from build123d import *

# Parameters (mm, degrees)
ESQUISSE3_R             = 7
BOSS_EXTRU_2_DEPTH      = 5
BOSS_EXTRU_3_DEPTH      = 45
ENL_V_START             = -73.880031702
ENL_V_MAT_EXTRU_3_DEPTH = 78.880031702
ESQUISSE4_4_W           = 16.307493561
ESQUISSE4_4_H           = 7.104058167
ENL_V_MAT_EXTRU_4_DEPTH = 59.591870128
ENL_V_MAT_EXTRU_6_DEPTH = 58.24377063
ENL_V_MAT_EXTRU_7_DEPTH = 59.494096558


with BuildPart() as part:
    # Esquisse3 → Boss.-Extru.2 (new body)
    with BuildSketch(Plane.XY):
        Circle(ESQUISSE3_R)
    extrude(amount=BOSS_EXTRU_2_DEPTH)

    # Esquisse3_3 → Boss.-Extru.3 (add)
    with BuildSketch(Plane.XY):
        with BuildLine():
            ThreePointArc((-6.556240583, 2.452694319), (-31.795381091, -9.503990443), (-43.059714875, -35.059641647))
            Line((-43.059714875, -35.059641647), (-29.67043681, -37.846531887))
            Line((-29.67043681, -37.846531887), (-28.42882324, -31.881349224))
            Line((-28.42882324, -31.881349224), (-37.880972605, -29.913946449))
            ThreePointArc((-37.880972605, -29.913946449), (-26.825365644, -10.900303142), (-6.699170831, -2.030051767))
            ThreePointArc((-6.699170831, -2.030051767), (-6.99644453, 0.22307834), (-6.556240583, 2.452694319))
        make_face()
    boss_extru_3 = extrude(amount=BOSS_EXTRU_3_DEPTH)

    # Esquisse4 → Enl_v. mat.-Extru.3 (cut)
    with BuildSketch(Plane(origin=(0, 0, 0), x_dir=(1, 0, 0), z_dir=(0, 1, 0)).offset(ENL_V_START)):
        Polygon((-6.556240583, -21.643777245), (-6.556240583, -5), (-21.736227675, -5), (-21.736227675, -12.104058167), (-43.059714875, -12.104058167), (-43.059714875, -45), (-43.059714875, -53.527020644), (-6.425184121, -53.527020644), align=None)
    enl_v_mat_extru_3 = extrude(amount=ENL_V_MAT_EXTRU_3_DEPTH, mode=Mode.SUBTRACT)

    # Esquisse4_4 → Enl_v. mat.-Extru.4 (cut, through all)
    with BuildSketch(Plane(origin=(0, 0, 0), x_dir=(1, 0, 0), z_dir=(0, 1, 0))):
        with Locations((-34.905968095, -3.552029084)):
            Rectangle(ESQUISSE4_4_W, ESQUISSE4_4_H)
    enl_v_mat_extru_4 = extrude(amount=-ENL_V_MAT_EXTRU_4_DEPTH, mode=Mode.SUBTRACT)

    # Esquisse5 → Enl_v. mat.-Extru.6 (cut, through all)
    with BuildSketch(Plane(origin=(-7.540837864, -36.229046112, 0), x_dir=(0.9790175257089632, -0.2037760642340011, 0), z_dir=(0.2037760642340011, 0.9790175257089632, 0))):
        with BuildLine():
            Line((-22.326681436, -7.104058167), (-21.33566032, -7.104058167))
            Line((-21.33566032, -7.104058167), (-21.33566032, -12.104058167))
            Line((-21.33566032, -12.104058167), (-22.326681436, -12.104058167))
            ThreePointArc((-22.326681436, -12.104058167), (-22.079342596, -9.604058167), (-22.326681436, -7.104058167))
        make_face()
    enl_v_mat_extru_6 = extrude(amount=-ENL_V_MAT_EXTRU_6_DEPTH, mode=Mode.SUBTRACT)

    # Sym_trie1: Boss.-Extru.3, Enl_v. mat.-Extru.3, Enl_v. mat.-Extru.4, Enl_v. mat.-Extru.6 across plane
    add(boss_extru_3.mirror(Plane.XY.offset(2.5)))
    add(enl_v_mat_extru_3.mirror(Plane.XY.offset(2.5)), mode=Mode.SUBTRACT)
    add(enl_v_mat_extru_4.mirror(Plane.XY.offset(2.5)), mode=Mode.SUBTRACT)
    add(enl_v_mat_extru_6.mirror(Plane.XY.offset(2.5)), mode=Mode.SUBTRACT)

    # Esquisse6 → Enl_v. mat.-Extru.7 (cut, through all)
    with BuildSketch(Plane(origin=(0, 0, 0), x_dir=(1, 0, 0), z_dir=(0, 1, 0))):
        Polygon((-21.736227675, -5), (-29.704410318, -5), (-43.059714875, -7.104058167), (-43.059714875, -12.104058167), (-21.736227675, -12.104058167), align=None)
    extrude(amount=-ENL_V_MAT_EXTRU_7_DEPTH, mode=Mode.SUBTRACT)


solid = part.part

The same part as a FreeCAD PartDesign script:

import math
import FreeCAD as App
import Part
import Sketcher
from FreeCAD import Vector

doc = App.newDocument("Part")
body = doc.addObject("PartDesign::Body", "Body")

# Sketch on XY plane
sketch1 = body.newObject("Sketcher::SketchObject", "Sketch")
sketch1.AttachmentSupport = (doc.getObject("XY_Plane"), [""])
sketch1.MapMode = "FlatFace"
sketch1.addGeometry(Part.Circle(Vector(0, 0, 0), Vector(0, 0, 1), 7), False)
sketch1.addConstraint(Sketcher.Constraint("Coincident", 0, 3, -1, 1))
sketch1.addConstraint(Sketcher.Constraint("Diameter", 0, 14.0))
pad1 = body.newObject("PartDesign::Pad", "Pad")
pad1.Profile = sketch1
pad1.Length = 5

# Sketch on XY plane
sketch2 = body.newObject("Sketcher::SketchObject", "Sketch001")
sketch2.AttachmentSupport = (doc.getObject("XY_Plane"), [""])
sketch2.MapMode = "FlatFace"
sketch2.addGeometry(Part.ArcOfCircle(Part.Circle(Vector(-3.128248, -37.400146, 0), Vector(0, 0, 1), 40), math.radians(94.916268), math.radians(176.645559)), False)
sketch2.addGeometry(Part.LineSegment(Vector(-43.059715, -35.059642, 0), Vector(-29.670437, -37.846532, 0)), False)
sketch2.addGeometry(Part.LineSegment(Vector(-29.670437, -37.846532, 0), Vector(-28.428823, -31.881349, 0)), False)
sketch2.addGeometry(Part.LineSegment(Vector(-28.428823, -31.881349, 0), Vector(-37.880973, -29.913946, 0)), False)
sketch2.addGeometry(Part.ArcOfCircle(Part.Circle(Vector(-3.128248, -37.400146, 0), Vector(0, 0, 1), 35.549895), math.radians(95.76498), math.radians(167.843487)), False)
sketch2.addGeometry(Part.ArcOfCircle(Part.Circle(Vector(0, 0, 0), Vector(0, 0, 1), 7), math.radians(159.489141), math.radians(196.858399)), False)
sketch2.addConstraint(Sketcher.Constraint("Coincident", 0, 2, 1, 1))
sketch2.addConstraint(Sketcher.Constraint("Coincident", 1, 2, 2, 1))
sketch2.addConstraint(Sketcher.Constraint("Coincident", 2, 2, 3, 1))
sketch2.addConstraint(Sketcher.Constraint("Coincident", 3, 2, 4, 2))
sketch2.addConstraint(Sketcher.Constraint("Coincident", 4, 1, 5, 2))
sketch2.addConstraint(Sketcher.Constraint("Coincident", 5, 1, 0, 1))
sketch2.addConstraint(Sketcher.Constraint("Coincident", 5, 3, -1, 1))
sketch2.addConstraint(Sketcher.Constraint("Coincident", 4, 3, 0, 3))
sketch2.addConstraint(Sketcher.Constraint("Perpendicular", 1, 2))
sketch2.addConstraint(Sketcher.Constraint("Perpendicular", 2, 3))
sketch2.addConstraint(Sketcher.Constraint("Radius", 0, 40.0))
sketch2.addConstraint(Sketcher.Constraint("Radius", 5, 7.0))
sketch2.addConstraint(Sketcher.Constraint("Radius", 4, 35.549895))
sketch2.addConstraint(Sketcher.Constraint("DistanceY", 4, 3, 3, 2, 7.486199))
sketch2.addConstraint(Sketcher.Constraint("DistanceX", 3, 2, 4, 1, 31.181802))
sketch2.addConstraint(Sketcher.Constraint("Distance", 1, 13.676239))
sketch2.addConstraint(Sketcher.Constraint("Distance", 2, 6.093029))
sketch2.addConstraint(Sketcher.Constraint("Distance", 3, 9.654729))
sketch2.addConstraint(Sketcher.Constraint("DistanceX", 0, 3, -1, 1, 3.128248))
pad2 = body.newObject("PartDesign::Pad", "Pad001")
pad2.Profile = sketch2
pad2.Length = 45

# Sketch on XZ plane
sketch3 = body.newObject("Sketcher::SketchObject", "Sketch002")
sketch3.AttachmentSupport = (doc.getObject("XZ_Plane"), [""])
sketch3.MapMode = "FlatFace"
sketch3.AttachmentOffset = App.Placement(Vector(0, 0, 73.880032), App.Rotation())
sketch3.addGeometry(Part.LineSegment(Vector(-6.556241, 21.643777, 0), Vector(-6.556241, 5, 0)), False)
sketch3.addGeometry(Part.LineSegment(Vector(-6.556241, 5, 0), Vector(-21.736228, 5, 0)), False)
sketch3.addGeometry(Part.LineSegment(Vector(-21.736228, 5, 0), Vector(-21.736228, 12.104058, 0)), False)
sketch3.addGeometry(Part.LineSegment(Vector(-21.736228, 12.104058, 0), Vector(-43.059715, 12.104058, 0)), False)
sketch3.addGeometry(Part.LineSegment(Vector(-43.059715, 12.104058, 0), Vector(-43.059715, 53.527021, 0)), False)
sketch3.addGeometry(Part.LineSegment(Vector(-43.059715, 53.527021, 0), Vector(-6.425184, 53.527021, 0)), False)
sketch3.addGeometry(Part.LineSegment(Vector(-6.425184, 53.527021, 0), Vector(-6.556241, 21.643777, 0)), False)
sketch3.addConstraint(Sketcher.Constraint("Coincident", 0, 2, 1, 1))
sketch3.addConstraint(Sketcher.Constraint("Coincident", 1, 2, 2, 1))
sketch3.addConstraint(Sketcher.Constraint("Coincident", 2, 2, 3, 1))
sketch3.addConstraint(Sketcher.Constraint("Coincident", 3, 2, 4, 1))
sketch3.addConstraint(Sketcher.Constraint("Coincident", 4, 2, 5, 1))
sketch3.addConstraint(Sketcher.Constraint("Coincident", 5, 2, 6, 1))
sketch3.addConstraint(Sketcher.Constraint("Coincident", 6, 2, 0, 1))
sketch3.addConstraint(Sketcher.Constraint("Vertical", 0))
sketch3.addConstraint(Sketcher.Constraint("Horizontal", 1))
sketch3.addConstraint(Sketcher.Constraint("Vertical", 2))
sketch3.addConstraint(Sketcher.Constraint("Horizontal", 3))
sketch3.addConstraint(Sketcher.Constraint("Vertical", 4))
sketch3.addConstraint(Sketcher.Constraint("Horizontal", 5))
sketch3.addConstraint(Sketcher.Constraint("DistanceY", -1, 1, 0, 2, 5.0))
sketch3.addConstraint(Sketcher.Constraint("DistanceX", 5, 1, 5, 2, 36.634531))
sketch3.addConstraint(Sketcher.Constraint("DistanceY", 2, 1, 2, 2, 7.104058))
sketch3.addConstraint(Sketcher.Constraint("DistanceX", 1, 2, 1, 1, 15.179987))
sketch3.addConstraint(Sketcher.Constraint("DistanceX", 3, 2, 3, 1, 21.323487))
sketch3.addConstraint(Sketcher.Constraint("DistanceY", 0, 2, 0, 1, 16.643777))
sketch3.addConstraint(Sketcher.Constraint("DistanceY", 4, 1, 4, 2, 41.422962))
sketch3.addConstraint(Sketcher.Constraint("DistanceX", 0, 2, -1, 1, 6.556241))
pocket1 = body.newObject("PartDesign::Pocket", "Pocket")
pocket1.Profile = sketch3
pocket1.Length = 78.880032

# Sketch on XZ plane
sketch4 = body.newObject("Sketcher::SketchObject", "Sketch003")
sketch4.AttachmentSupport = (doc.getObject("XZ_Plane"), [""])
sketch4.MapMode = "FlatFace"
sketch4.addGeometry(Part.LineSegment(Vector(-43.059715, 0, 0), Vector(-43.059715, 7.104058, 0)), False)
sketch4.addGeometry(Part.LineSegment(Vector(-43.059715, 7.104058, 0), Vector(-26.752221, 7.104058, 0)), False)
sketch4.addGeometry(Part.LineSegment(Vector(-26.752221, 7.104058, 0), Vector(-26.752221, 0, 0)), False)
sketch4.addGeometry(Part.LineSegment(Vector(-26.752221, 0, 0), Vector(-43.059715, 0, 0)), False)
sketch4.addConstraint(Sketcher.Constraint("Coincident", 0, 2, 1, 1))
sketch4.addConstraint(Sketcher.Constraint("Coincident", 1, 2, 2, 1))
sketch4.addConstraint(Sketcher.Constraint("Coincident", 2, 2, 3, 1))
sketch4.addConstraint(Sketcher.Constraint("Coincident", 3, 2, 0, 1))
sketch4.addConstraint(Sketcher.Constraint("Vertical", 0))
sketch4.addConstraint(Sketcher.Constraint("Horizontal", 1))
sketch4.addConstraint(Sketcher.Constraint("Vertical", 2))
sketch4.addConstraint(Sketcher.Constraint("Horizontal", 3))
sketch4.addConstraint(Sketcher.Constraint("PointOnObject", 2, 2, -1))
sketch4.addConstraint(Sketcher.Constraint("DistanceY", 0, 1, 0, 2, 7.104058))
sketch4.addConstraint(Sketcher.Constraint("DistanceX", 1, 1, 1, 2, 16.307494))
sketch4.addConstraint(Sketcher.Constraint("DistanceX", 1, 2, -1, 1, 26.752221))
pocket2 = body.newObject("PartDesign::Pocket", "Pocket001")
pocket2.Profile = sketch4
pocket2.Type = "ThroughAll"
pocket2.Reversed = True

# Sketch on an angled plane
sketch5 = body.newObject("Sketcher::SketchObject", "Sketch004")
sketch5.Placement = App.Placement(Vector(-7.540838, -36.229046, 0), App.Rotation(Vector(0.979017526, -0.203776064, 0), Vector(0, 0, -1), Vector(0.203776064, 0.979017526, 0), "ZXY"))
sketch5.addGeometry(Part.LineSegment(Vector(-21.33566, -7.104058, 0), Vector(-22.326681, -7.104058, 0)), False)
sketch5.addGeometry(Part.ArcOfCircle(Part.Circle(Vector(-34.837502, -9.604058, 0), Vector(0, 0, 1), 12.758159), math.radians(-11.300403), math.radians(11.300403)), False)
sketch5.addGeometry(Part.LineSegment(Vector(-22.326681, -12.104058, 0), Vector(-21.33566, -12.104058, 0)), False)
sketch5.addGeometry(Part.LineSegment(Vector(-21.33566, -12.104058, 0), Vector(-21.33566, -7.104058, 0)), False)
sketch5.addConstraint(Sketcher.Constraint("Coincident", 0, 2, 1, 2))
sketch5.addConstraint(Sketcher.Constraint("Coincident", 1, 1, 2, 1))
sketch5.addConstraint(Sketcher.Constraint("Coincident", 2, 2, 3, 1))
sketch5.addConstraint(Sketcher.Constraint("Coincident", 3, 2, 0, 1))
sketch5.addConstraint(Sketcher.Constraint("Horizontal", 0))
sketch5.addConstraint(Sketcher.Constraint("Horizontal", 2))
sketch5.addConstraint(Sketcher.Constraint("Vertical", 3))
sketch5.addConstraint(Sketcher.Constraint("Vertical", 0, 2, 1, 1))
sketch5.addConstraint(Sketcher.Constraint("DistanceY", 3, 1, 3, 2, 5.0))
sketch5.addConstraint(Sketcher.Constraint("Radius", 1, 12.758159))
sketch5.addConstraint(Sketcher.Constraint("DistanceX", 0, 2, 0, 1, 0.991021))
sketch5.addConstraint(Sketcher.Constraint("DistanceX", 1, 3, -1, 1, 34.837502))
sketch5.addConstraint(Sketcher.Constraint("DistanceY", 1, 3, -1, 1, 9.604058))
pocket3 = body.newObject("PartDesign::Pocket", "Pocket002")
pocket3.Profile = sketch5
pocket3.Type = "ThroughAll"
doc.recompute()

datumplane = body.newObject("PartDesign::Plane", "DatumPlane")
datumplane.AttachmentSupport = (doc.getObject("XY_Plane"), [""])
datumplane.MapMode = "FlatFace"
datumplane.AttachmentOffset = App.Placement(Vector(0, 0, 2.5), App.Rotation())
mirrored = body.newObject("PartDesign::Mirrored", "Mirrored")
mirrored.Originals = [pad2, pocket1, pocket2, pocket3]
mirrored.MirrorPlane = (datumplane, [""])
body.Tip = mirrored

# Sketch on XZ plane
sketch6 = body.newObject("Sketcher::SketchObject", "Sketch005")
sketch6.AttachmentSupport = (doc.getObject("XZ_Plane"), [""])
sketch6.MapMode = "FlatFace"
sketch6.addGeometry(Part.LineSegment(Vector(-21.736228, 5, 0), Vector(-29.70441, 5, 0)), False)
sketch6.addGeometry(Part.LineSegment(Vector(-29.70441, 5, 0), Vector(-43.059715, 7.104058, 0)), False)
sketch6.addGeometry(Part.LineSegment(Vector(-43.059715, 7.104058, 0), Vector(-43.059715, 12.104058, 0)), False)
sketch6.addGeometry(Part.LineSegment(Vector(-43.059715, 12.104058, 0), Vector(-21.736228, 12.104058, 0)), False)
sketch6.addGeometry(Part.LineSegment(Vector(-21.736228, 12.104058, 0), Vector(-21.736228, 5, 0)), False)
sketch6.addConstraint(Sketcher.Constraint("Coincident", 0, 2, 1, 1))
sketch6.addConstraint(Sketcher.Constraint("Coincident", 1, 2, 2, 1))
sketch6.addConstraint(Sketcher.Constraint("Coincident", 2, 2, 3, 1))
sketch6.addConstraint(Sketcher.Constraint("Coincident", 3, 2, 4, 1))
sketch6.addConstraint(Sketcher.Constraint("Coincident", 4, 2, 0, 1))
sketch6.addConstraint(Sketcher.Constraint("Horizontal", 0))
sketch6.addConstraint(Sketcher.Constraint("Vertical", 2))
sketch6.addConstraint(Sketcher.Constraint("Horizontal", 3))
sketch6.addConstraint(Sketcher.Constraint("Vertical", 4))
sketch6.addConstraint(Sketcher.Constraint("DistanceY", 2, 1, 2, 2, 5.0))
sketch6.addConstraint(Sketcher.Constraint("DistanceY", -1, 1, 0, 2, 5.0))
sketch6.addConstraint(Sketcher.Constraint("DistanceY", 4, 2, 4, 1, 7.104058))
sketch6.addConstraint(Sketcher.Constraint("Distance", 1, 13.52003))
sketch6.addConstraint(Sketcher.Constraint("DistanceX", 0, 2, 0, 1, 7.968183))
sketch6.addConstraint(Sketcher.Constraint("DistanceX", 0, 2, -1, 1, 29.70441))
pocket4 = body.newObject("PartDesign::Pocket", "Pocket003")
pocket4.Profile = sketch6
pocket4.Type = "ThroughAll"
pocket4.Reversed = True

doc.recompute()
